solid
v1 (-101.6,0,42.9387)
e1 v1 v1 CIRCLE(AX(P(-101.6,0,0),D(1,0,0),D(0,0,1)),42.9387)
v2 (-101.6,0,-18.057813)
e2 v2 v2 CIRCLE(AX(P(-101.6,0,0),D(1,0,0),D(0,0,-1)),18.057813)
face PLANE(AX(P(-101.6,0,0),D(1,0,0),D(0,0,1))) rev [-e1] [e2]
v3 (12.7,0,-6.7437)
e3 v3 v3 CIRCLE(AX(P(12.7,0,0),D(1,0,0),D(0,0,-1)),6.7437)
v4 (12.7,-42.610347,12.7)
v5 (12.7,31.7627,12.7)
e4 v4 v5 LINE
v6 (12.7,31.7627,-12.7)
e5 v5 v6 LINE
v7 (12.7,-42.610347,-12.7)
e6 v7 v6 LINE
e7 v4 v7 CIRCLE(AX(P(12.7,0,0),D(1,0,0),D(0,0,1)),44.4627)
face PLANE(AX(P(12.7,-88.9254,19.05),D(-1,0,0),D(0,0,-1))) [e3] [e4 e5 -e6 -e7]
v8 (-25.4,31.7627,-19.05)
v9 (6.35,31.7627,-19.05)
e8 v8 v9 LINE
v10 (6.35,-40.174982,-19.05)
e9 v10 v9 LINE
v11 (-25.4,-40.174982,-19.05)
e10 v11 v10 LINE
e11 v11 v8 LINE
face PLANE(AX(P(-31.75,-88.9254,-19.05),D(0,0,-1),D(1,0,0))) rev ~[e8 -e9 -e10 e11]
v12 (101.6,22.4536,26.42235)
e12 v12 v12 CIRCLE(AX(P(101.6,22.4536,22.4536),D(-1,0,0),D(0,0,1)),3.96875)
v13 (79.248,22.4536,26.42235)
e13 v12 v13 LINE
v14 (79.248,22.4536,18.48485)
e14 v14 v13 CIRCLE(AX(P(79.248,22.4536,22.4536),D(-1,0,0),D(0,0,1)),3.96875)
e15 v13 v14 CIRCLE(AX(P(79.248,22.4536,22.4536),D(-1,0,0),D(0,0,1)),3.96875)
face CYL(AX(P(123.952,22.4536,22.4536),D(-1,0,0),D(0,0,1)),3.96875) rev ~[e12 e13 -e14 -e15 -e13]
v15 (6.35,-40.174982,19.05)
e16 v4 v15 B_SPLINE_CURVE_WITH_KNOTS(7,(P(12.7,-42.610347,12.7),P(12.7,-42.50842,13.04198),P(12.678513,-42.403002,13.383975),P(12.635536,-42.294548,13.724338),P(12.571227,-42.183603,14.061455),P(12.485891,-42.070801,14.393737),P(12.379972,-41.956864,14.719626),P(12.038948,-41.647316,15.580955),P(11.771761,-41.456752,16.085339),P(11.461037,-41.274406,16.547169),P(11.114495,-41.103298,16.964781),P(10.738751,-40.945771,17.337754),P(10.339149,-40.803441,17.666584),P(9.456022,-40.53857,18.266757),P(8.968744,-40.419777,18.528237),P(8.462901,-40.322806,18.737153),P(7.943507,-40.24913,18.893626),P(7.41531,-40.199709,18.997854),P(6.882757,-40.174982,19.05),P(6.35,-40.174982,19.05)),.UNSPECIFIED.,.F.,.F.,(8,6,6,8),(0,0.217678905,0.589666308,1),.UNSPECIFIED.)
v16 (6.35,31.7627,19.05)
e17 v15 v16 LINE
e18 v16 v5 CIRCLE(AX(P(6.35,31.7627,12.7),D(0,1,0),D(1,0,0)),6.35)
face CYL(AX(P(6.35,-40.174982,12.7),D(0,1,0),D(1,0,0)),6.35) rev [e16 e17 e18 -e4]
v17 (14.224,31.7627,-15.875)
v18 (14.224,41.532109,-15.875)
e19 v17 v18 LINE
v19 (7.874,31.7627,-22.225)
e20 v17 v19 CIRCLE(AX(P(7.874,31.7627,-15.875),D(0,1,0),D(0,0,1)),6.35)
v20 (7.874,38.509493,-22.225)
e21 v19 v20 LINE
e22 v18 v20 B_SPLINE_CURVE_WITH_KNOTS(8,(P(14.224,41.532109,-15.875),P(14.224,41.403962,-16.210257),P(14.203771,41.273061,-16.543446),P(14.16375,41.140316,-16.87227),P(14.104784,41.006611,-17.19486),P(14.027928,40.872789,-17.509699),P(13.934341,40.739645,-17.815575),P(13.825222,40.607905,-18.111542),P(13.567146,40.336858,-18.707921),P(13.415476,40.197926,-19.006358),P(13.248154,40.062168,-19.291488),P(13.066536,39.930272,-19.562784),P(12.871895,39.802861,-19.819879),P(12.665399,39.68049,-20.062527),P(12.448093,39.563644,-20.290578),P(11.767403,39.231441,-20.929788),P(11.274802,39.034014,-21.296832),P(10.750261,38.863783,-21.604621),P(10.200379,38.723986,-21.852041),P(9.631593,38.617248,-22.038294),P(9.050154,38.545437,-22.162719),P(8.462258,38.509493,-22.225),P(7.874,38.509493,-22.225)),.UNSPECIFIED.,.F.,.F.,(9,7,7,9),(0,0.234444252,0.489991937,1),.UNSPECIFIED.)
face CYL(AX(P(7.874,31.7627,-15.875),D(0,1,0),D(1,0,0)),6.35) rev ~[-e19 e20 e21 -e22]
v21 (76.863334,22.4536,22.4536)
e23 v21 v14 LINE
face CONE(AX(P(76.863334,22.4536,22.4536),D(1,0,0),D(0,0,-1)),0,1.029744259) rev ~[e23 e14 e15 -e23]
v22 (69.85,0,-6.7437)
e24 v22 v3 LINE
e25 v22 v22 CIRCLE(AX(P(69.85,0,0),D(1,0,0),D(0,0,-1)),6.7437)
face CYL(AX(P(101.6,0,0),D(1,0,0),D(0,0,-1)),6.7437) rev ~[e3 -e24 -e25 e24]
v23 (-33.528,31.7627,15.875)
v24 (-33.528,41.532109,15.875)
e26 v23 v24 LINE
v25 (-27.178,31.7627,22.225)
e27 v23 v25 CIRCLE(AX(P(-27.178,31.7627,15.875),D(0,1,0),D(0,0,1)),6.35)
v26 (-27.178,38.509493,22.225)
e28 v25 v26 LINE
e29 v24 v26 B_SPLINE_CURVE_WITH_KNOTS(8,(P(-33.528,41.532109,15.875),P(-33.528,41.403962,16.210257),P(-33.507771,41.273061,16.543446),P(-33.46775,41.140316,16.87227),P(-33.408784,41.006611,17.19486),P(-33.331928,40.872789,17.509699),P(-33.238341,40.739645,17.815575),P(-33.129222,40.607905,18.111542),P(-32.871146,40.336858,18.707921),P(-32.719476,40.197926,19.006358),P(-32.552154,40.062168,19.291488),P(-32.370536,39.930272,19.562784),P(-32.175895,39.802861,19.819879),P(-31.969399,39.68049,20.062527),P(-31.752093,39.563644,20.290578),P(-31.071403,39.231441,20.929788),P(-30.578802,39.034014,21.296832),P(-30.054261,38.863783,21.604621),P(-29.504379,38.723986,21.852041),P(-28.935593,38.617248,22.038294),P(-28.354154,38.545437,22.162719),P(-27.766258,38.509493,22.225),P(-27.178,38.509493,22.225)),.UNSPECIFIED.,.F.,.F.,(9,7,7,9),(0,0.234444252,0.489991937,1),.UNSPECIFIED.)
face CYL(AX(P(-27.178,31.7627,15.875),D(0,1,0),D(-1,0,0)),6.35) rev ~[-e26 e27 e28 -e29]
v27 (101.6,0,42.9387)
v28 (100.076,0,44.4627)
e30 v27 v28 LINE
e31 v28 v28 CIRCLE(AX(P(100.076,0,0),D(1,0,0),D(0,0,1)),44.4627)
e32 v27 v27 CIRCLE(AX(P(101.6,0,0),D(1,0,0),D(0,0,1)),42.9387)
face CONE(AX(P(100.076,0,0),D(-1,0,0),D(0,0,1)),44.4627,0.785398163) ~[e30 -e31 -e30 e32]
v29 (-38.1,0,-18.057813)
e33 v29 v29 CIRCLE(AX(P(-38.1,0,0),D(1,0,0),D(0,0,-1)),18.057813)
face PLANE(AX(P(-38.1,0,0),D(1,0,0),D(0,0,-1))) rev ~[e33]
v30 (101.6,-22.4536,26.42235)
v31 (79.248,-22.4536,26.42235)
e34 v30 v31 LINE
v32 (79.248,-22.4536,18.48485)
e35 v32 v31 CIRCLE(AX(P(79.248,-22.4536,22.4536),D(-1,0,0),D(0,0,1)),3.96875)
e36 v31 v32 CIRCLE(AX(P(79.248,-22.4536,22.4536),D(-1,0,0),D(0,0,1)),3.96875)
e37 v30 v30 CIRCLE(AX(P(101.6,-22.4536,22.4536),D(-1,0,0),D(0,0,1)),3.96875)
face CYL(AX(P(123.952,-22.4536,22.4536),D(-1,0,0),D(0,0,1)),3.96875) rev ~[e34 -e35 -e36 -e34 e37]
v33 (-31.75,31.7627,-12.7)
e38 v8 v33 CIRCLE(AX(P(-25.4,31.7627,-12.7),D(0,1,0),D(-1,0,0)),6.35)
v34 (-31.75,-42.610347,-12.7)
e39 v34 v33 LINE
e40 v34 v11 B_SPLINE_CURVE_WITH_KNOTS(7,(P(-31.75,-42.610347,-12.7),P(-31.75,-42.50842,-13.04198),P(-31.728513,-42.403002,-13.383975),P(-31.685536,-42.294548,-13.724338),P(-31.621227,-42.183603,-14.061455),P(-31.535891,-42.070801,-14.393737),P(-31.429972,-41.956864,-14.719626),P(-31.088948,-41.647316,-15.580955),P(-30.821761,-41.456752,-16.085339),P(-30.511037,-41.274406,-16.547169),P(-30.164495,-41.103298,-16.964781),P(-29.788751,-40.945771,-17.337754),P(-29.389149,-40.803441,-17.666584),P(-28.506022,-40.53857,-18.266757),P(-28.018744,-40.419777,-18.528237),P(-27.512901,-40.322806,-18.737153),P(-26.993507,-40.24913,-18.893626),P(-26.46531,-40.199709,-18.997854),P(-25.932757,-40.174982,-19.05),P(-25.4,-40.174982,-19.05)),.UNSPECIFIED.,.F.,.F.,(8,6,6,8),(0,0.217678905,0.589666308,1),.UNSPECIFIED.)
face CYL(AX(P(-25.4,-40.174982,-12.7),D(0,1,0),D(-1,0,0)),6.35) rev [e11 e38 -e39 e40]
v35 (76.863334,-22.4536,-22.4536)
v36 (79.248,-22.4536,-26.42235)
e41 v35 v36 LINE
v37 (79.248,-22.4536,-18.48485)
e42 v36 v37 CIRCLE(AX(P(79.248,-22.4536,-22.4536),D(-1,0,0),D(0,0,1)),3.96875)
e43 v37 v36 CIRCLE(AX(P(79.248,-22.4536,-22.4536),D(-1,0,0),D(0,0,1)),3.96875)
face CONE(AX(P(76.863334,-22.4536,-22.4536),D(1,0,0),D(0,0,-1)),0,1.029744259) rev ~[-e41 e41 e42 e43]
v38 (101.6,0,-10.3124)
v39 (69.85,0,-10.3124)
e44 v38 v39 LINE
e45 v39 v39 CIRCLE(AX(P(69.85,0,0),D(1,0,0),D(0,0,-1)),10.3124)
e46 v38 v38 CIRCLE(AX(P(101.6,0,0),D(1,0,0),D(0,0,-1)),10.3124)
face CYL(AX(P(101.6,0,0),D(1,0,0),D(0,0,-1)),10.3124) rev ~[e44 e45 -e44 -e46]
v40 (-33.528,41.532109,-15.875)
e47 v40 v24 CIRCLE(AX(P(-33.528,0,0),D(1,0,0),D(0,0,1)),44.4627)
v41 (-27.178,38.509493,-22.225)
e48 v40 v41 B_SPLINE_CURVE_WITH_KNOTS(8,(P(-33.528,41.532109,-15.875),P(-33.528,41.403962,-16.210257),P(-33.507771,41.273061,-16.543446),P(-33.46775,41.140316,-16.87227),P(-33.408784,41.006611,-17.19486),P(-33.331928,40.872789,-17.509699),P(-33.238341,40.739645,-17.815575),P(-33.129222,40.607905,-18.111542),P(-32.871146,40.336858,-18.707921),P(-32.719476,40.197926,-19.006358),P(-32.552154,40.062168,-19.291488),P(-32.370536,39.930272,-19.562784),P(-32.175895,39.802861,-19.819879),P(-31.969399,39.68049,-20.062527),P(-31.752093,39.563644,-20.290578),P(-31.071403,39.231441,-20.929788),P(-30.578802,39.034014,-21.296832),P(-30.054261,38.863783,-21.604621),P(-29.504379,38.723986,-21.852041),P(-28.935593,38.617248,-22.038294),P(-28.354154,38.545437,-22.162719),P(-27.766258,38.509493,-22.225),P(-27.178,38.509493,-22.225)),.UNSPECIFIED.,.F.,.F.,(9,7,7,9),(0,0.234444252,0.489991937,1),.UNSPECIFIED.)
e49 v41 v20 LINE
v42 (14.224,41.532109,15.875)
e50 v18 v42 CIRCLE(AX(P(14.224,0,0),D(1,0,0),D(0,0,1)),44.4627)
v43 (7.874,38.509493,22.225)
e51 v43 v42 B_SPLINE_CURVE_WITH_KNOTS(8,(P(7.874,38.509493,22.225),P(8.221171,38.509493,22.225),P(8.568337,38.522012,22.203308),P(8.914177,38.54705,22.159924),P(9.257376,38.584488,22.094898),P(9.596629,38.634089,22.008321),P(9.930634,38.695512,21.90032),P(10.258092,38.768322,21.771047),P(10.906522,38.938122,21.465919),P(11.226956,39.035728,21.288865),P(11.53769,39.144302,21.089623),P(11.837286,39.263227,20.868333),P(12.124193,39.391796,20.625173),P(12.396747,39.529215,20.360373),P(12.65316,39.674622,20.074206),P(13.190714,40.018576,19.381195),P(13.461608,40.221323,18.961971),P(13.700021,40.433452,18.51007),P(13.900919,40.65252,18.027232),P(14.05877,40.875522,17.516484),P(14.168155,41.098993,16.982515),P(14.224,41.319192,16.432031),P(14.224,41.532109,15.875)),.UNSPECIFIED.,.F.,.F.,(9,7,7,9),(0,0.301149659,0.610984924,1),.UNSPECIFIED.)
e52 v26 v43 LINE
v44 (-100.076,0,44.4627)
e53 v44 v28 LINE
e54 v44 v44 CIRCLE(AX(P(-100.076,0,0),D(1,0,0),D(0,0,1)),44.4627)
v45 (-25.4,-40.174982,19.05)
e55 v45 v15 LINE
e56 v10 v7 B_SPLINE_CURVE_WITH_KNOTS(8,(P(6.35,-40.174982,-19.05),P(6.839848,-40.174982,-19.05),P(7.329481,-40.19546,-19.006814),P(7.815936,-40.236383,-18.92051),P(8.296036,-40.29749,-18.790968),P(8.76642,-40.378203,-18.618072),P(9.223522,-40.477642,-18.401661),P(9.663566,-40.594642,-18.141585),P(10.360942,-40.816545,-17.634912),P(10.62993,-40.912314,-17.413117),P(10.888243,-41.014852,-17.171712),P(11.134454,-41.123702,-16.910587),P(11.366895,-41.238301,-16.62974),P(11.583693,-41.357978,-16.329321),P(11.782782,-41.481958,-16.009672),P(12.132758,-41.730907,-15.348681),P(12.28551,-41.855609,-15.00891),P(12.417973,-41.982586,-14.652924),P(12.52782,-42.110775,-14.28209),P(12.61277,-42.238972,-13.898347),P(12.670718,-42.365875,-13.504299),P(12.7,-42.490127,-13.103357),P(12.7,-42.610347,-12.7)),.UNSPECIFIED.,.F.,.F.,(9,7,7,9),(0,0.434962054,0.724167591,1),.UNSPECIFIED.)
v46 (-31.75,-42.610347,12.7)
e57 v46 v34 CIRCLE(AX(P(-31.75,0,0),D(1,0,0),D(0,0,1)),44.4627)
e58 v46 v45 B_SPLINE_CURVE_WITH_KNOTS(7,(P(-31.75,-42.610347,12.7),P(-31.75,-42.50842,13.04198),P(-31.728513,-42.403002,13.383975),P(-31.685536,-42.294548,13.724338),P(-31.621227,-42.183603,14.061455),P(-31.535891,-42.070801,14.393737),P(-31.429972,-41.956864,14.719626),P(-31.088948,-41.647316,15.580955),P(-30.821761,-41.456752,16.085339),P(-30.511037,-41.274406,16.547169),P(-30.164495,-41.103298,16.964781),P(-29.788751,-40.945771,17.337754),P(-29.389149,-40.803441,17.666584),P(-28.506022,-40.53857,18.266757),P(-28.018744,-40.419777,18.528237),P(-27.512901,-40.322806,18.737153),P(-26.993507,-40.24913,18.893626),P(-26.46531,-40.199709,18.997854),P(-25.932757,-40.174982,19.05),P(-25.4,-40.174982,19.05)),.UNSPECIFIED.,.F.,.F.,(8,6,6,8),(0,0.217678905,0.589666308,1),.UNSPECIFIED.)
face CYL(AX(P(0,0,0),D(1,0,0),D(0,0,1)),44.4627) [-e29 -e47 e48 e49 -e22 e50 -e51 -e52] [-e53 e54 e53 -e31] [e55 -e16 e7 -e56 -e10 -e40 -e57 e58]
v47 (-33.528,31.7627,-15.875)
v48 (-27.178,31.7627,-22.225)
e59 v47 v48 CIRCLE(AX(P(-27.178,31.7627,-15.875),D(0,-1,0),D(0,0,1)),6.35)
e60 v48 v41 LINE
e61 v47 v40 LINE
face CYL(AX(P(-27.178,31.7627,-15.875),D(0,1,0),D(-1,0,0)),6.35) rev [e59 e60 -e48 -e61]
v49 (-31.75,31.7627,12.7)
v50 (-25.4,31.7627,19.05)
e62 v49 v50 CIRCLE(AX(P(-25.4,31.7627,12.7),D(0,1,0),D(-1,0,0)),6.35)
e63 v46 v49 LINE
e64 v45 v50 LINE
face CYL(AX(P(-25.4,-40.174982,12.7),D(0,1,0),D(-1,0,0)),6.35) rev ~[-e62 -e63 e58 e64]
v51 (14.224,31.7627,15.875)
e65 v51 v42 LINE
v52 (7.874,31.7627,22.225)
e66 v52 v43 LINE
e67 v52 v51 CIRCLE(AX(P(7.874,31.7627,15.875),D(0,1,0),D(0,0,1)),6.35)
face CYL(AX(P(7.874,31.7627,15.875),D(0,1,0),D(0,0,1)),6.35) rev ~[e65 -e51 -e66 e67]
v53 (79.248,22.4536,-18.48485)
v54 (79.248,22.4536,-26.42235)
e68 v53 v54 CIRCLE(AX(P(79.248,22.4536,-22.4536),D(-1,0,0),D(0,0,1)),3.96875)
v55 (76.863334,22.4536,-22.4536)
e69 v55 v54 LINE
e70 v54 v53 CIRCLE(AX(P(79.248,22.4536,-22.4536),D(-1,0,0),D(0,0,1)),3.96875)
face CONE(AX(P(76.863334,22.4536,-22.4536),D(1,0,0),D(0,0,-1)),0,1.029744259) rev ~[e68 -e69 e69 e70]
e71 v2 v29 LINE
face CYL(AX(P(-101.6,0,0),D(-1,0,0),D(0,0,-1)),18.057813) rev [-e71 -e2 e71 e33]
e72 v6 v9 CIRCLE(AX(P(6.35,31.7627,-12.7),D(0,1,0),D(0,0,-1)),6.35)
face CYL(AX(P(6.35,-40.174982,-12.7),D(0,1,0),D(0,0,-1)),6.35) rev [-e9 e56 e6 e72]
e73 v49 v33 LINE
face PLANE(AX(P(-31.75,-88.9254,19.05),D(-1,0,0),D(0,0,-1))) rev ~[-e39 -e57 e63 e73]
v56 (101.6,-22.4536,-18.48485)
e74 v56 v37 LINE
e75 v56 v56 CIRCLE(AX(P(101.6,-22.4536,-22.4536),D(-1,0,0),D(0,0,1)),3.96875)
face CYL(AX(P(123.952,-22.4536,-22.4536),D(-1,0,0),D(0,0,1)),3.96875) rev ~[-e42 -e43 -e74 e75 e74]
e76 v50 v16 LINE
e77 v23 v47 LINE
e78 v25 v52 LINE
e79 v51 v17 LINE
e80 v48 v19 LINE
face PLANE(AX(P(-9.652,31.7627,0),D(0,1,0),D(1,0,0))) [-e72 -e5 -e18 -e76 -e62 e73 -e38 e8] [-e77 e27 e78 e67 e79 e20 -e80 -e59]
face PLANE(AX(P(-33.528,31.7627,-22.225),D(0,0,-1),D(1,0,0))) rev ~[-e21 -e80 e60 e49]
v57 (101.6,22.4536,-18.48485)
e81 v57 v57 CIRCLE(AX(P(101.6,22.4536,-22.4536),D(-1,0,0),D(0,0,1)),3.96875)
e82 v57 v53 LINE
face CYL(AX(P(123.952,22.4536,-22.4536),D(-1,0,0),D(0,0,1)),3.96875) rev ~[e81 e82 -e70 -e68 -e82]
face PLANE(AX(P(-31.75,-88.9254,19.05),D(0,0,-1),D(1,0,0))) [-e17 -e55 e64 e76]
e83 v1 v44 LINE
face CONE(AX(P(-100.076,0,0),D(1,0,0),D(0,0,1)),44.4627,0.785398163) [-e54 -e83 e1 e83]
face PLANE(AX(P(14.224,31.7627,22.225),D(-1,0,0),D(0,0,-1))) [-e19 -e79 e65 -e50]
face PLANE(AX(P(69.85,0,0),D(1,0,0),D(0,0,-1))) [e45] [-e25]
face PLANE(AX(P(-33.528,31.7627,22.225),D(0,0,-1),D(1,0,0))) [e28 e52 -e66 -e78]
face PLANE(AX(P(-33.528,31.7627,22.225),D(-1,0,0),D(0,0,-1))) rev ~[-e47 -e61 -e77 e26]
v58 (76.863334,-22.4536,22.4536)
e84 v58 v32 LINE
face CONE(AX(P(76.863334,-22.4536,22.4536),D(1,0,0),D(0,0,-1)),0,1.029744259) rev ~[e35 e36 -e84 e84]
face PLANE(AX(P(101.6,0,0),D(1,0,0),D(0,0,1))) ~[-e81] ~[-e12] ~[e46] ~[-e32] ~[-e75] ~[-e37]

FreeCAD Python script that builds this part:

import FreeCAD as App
import Part
import Sketcher
from FreeCAD import Vector
Q = App.Units.Quantity


def edges_at(feature, points):
    """Names of the edges that pass closest to the given points."""
    edges = feature.Shape.Edges
    near = lambda p: min(range(len(edges)), key=lambda i: edges[i].distToShape(Part.Vertex(*p))[0])
    return sorted({f"Edge{near(p) + 1}" for p in points})

doc = App.newDocument("Part")
body = doc.addObject("PartDesign::Body", "Body")

sketch1 = body.newObject("Sketcher::SketchObject", "Sketch")
sketch1.AttachmentSupport = (doc.getObject("XZ_Plane"), [""])
sketch1.MapMode = "FlatFace"
sketch1.addGeometry([
    Part.LineSegment(Vector(-101.6, -44.4627, 0), Vector(-101.6, 0, 0)),
    Part.LineSegment(Vector(-101.6, 0, 0), Vector(101.6, 0, 0)),
    Part.LineSegment(Vector(101.6, 0, 0), Vector(101.6, -44.4627, 0)),
    Part.LineSegment(Vector(101.6, -44.4627, 0), Vector(-101.6, -44.4627, 0)),
], False)
sketch1.addConstraint([
    Sketcher.Constraint("Coincident", 0, 2, 1, 1),
    Sketcher.Constraint("Coincident", 1, 2, 2, 1),
    Sketcher.Constraint("Coincident", 2, 2, 3, 1),
    Sketcher.Constraint("Coincident", 3, 2, 0, 1),
    Sketcher.Constraint("Vertical", 0),
    Sketcher.Constraint("Horizontal", 1),
    Sketcher.Constraint("Vertical", 2),
    Sketcher.Constraint("Horizontal", 3),
    Sketcher.Constraint("Symmetric", 0, 2, 1, 2, -1, 1),
    Sketcher.Constraint("DistanceX", 1, 1, 1, 2, Q("8 in")),
    Sketcher.Constraint("DistanceY", 0, 1, 0, 2, Q("1.7505 in")),
])
revolution = body.newObject("PartDesign::Revolution", "Revolution")
revolution.Profile = sketch1
revolution.ReferenceAxis = (sketch1, ["H_Axis"])
revolution.Angle = 360
doc.recompute()

chamfer = body.newObject("PartDesign::Chamfer", "Chamfer")
chamfer.Base = (revolution, edges_at(revolution, [(101.6, 0, -44.463), (-101.6, 0, -44.463)]))
chamfer.Size = Q("0.06 in")

sketch2 = body.newObject("Sketcher::SketchObject", "Sketch001")
sketch2.AttachmentSupport = (doc.getObject("XZ_Plane"), [""])
sketch2.MapMode = "FlatFace"
sketch2.AttachmentOffset = App.Placement(Vector(0, 0, 3.501 * 25.4), App.Rotation())
sketch2.addGeometry([
    Part.LineSegment(Vector(-31.75, -19.05, 0), Vector(-31.75, 19.05, 0)),
    Part.LineSegment(Vector(-31.75, 19.05, 0), Vector(12.7, 19.05, 0)),
    Part.LineSegment(Vector(12.7, 19.05, 0), Vector(12.7, -19.05, 0)),
    Part.LineSegment(Vector(12.7, -19.05, 0), Vector(-31.75, -19.05, 0)),
], False)
sketch2.addConstraint([
    Sketcher.Constraint("Coincident", 0, 2, 1, 1),
    Sketcher.Constraint("Coincident", 1, 2, 2, 1),
    Sketcher.Constraint("Coincident", 2, 2, 3, 1),
    Sketcher.Constraint("Coincident", 3, 2, 0, 1),
    Sketcher.Constraint("Vertical", 0),
    Sketcher.Constraint("Horizontal", 1),
    Sketcher.Constraint("Vertical", 2),
    Sketcher.Constraint("Horizontal", 3),
    Sketcher.Constraint("DistanceY", 0, 1, 0, 2, Q("1.5 in")),
    Sketcher.Constraint("DistanceX", 1, 1, 1, 2, Q("1.75 in")),
    Sketcher.Constraint("DistanceX", -1, 1, 1, 2, Q("0.5 in")),
    Sketcher.Constraint("DistanceY", -1, 1, 0, 2, Q("0.75 in")),
])
pocket1 = body.newObject("PartDesign::Pocket", "Pocket")
pocket1.Profile = sketch2
pocket1.Length = Q("7.002 in")
doc.recompute()

fillet = body.newObject("PartDesign::Fillet", "Fillet")
fillet.Base = (pocket1, edges_at(pocket1, [
    (-31.75, 0, -19.05),
    (-31.75, 0, 19.05),
    (12.7, 0, 19.05),
    (12.7, 0, -19.05),
]))
fillet.Radius = Q("0.25 in")

sketch3 = body.newObject("Sketcher::SketchObject", "Sketch002")
sketch3.AttachmentSupport = (doc.getObject("XZ_Plane"), [""])
sketch3.MapMode = "FlatFace"
sketch3.AttachmentOffset = App.Placement(Vector(0, 0, -1.2505 * 25.4), App.Rotation())
sketch3.addGeometry([
    Part.LineSegment(Vector(-33.528, -22.225, 0), Vector(-33.528, 22.225, 0)),
    Part.LineSegment(Vector(-33.528, 22.225, 0), Vector(14.224, 22.225, 0)),
    Part.LineSegment(Vector(14.224, 22.225, 0), Vector(14.224, -22.225, 0)),
    Part.LineSegment(Vector(14.224, -22.225, 0), Vector(-33.528, -22.225, 0)),
], False)
sketch3.addConstraint([
    Sketcher.Constraint("Coincident", 0, 2, 1, 1),
    Sketcher.Constraint("Coincident", 1, 2, 2, 1),
    Sketcher.Constraint("Coincident", 2, 2, 3, 1),
    Sketcher.Constraint("Coincident", 3, 2, 0, 1),
    Sketcher.Constraint("Vertical", 0),
    Sketcher.Constraint("Horizontal", 1),
    Sketcher.Constraint("Vertical", 2),
    Sketcher.Constraint("Horizontal", 3),
    Sketcher.Constraint("DistanceX", 1, 1, 1, 2, Q("1.88 in")),
    Sketcher.Constraint("DistanceY", 0, 1, 0, 2, Q("1.75 in")),
    Sketcher.Constraint("DistanceX", 0, 2, -1, 1, Q("1.32 in")),
    Sketcher.Constraint("DistanceY", -1, 1, 0, 2, Q("0.875 in")),
])
pocket2 = body.newObject("PartDesign::Pocket", "Pocket001")
pocket2.Profile = sketch3
pocket2.Length = Q("3.501 in")
doc.recompute()

fillet2 = body.newObject("PartDesign::Fillet", "Fillet001")
fillet2.Base = (pocket2, edges_at(pocket2, [
    (-33.528, 35.136, -22.225),
    (-33.528, 35.136, 22.225),
    (14.224, 35.136, 22.225),
    (14.224, 35.136, -22.225),
]))
fillet2.Radius = Q("0.25 in")

sketch4 = body.newObject("Sketcher::SketchObject", "Sketch003")
sketch4.AttachmentSupport = (doc.getObject("YZ_Plane"), [""])
sketch4.MapMode = "FlatFace"
sketch4.AttachmentOffset = App.Placement(Vector(0, 0, -4 * 25.4), App.Rotation())
sketch4.addGeometry(Part.Circle(Vector(0, 0, 0), Vector(0, 0, 1), 18.057813), False)
sketch4.addConstraint([
    Sketcher.Constraint("Coincident", 0, 3, -1, 1),
    Sketcher.Constraint("Diameter", 0, Q("1.421875 in")),
])
pocket3 = body.newObject("PartDesign::Pocket", "Pocket002")
pocket3.Profile = sketch4
pocket3.Length = Q("2.5 in")
pocket3.Reversed = True

sketch5 = body.newObject("Sketcher::SketchObject", "Sketch004")
sketch5.AttachmentSupport = (doc.getObject("YZ_Plane"), [""])
sketch5.MapMode = "FlatFace"
sketch5.AttachmentOffset = App.Placement(Vector(0, 0, 4 * 25.4), App.Rotation())
sketch5.addGeometry(Part.Circle(Vector(0, 0, 0), Vector(0, 0, 1), 6.7437), False)
sketch5.addConstraint([
    Sketcher.Constraint("Coincident", 0, 3, -1, 1),
    Sketcher.Constraint("Diameter", 0, Q("0.531 in")),
])
pocket4 = body.newObject("PartDesign::Pocket", "Pocket003")
pocket4.Profile = sketch5
pocket4.Length = Q("3.75 in")

sketch6 = body.newObject("Sketcher::SketchObject", "Sketch005")
sketch6.AttachmentSupport = (doc.getObject("YZ_Plane"), [""])
sketch6.MapMode = "FlatFace"
sketch6.AttachmentOffset = App.Placement(Vector(0, 0, 4 * 25.4), App.Rotation())
sketch6.addGeometry(Part.Circle(Vector(0, 0, 0), Vector(0, 0, 1), 10.3124), False)
sketch6.addConstraint([
    Sketcher.Constraint("Coincident", 0, 3, -1, 1),
    Sketcher.Constraint("Diameter", 0, Q("0.812 in")),
])
pocket5 = body.newObject("PartDesign::Pocket", "Pocket004")
pocket5.Profile = sketch6
pocket5.Length = Q("1.25 in")

sketch7 = body.newObject("Sketcher::SketchObject", "Sketch006")
sketch7.AttachmentSupport = (doc.getObject("YZ_Plane"), [""])
sketch7.MapMode = "FlatFace"
sketch7.AttachmentOffset = App.Placement(Vector(0, 0, 4 * 25.4), App.Rotation())
sketch7.addGeometry([
    Part.Circle(Vector(-22.4536, 22.4536, 0), Vector(0, 0, 1), 3.96875),
    Part.Circle(Vector(-22.4536, -22.4536, 0), Vector(0, 0, 1), 3.96875),
    Part.Circle(Vector(22.4536, 22.4536, 0), Vector(0, 0, 1), 3.96875),
    Part.Circle(Vector(22.4536, -22.4536, 0), Vector(0, 0, 1), 3.96875),
], False)
sketch7.addConstraint([
    Sketcher.Constraint("Equal", 0, 1),
    Sketcher.Constraint("Equal", 1, 2),
    Sketcher.Constraint("Equal", 2, 3),
    Sketcher.Constraint("Symmetric", 1, 3, 2, 3, -1, 1),
    Sketcher.Constraint("Symmetric", 0, 3, 3, 3, -1, 1),
    Sketcher.Constraint("Symmetric", 0, 3, 2, 3, -2),
    Sketcher.Constraint("Diameter", 0, Q("0.3125 in")),
    Sketcher.Constraint("DistanceX", 0, 3, -1, 1, Q("0.884 in")),
    Sketcher.Constraint("DistanceY", -1, 1, 0, 3, Q("0.884 in")),
])
doc.recompute()
hole = body.newObject("PartDesign::Hole", "Hole")
hole.Profile = sketch7
hole.ThreadType = "None"
hole.Diameter = Q("0.3125 in")
hole.DepthType = "Dimension"
hole.Depth = Q("0.88 in")
hole.DrillPoint = "Angled"
hole.DrillPointAngle = 118

doc.recompute()
